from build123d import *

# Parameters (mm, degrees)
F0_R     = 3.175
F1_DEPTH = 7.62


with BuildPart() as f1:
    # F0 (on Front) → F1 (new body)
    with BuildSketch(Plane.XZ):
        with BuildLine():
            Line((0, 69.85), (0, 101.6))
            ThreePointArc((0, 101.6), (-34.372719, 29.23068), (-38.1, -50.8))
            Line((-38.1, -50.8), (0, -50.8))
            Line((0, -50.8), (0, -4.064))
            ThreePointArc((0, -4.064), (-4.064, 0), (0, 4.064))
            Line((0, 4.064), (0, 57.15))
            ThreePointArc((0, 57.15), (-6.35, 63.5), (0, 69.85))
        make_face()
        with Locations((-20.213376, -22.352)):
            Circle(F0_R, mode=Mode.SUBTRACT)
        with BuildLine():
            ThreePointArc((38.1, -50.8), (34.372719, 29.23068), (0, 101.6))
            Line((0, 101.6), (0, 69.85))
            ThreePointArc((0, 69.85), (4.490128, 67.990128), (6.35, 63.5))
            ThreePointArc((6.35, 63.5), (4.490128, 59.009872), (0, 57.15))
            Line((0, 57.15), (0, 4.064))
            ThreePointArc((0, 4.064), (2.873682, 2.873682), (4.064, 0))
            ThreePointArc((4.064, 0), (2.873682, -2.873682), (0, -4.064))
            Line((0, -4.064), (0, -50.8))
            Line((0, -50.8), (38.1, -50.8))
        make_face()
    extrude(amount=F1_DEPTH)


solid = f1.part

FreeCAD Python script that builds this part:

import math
import FreeCAD as App
import Part
import Sketcher
from FreeCAD import Vector
Q = App.Units.Quantity

doc = App.newDocument("Part")
body = doc.addObject("PartDesign::Body", "Body")

# Sketch on XZ plane
sketch1 = body.newObject("Sketcher::SketchObject", "Sketch")
sketch1.AttachmentSupport = (doc.getObject("XZ_Plane"), [""])
sketch1.MapMode = "FlatFace"
sketch1.addGeometry(Part.ArcOfCircle(Part.Circle(Vector(162.760234, -20.052559, 0), Vector(0, 0, 1), 203.199997), math.radians(143.224306), math.radians(188.703207)), False)
sketch1.addGeometry(Part.LineSegment(Vector(-38.1, -50.8, 0), Vector(38.1, -50.8, 0)), False)
sketch1.addGeometry(Part.ArcOfCircle(Part.Circle(Vector(-162.760234, -20.052559, 0), Vector(0, 0, 1), 203.199997), math.radians(-8.703207), math.radians(36.775694)), False)
sketch1.addGeometry(Part.ArcOfCircle(Part.Circle(Vector(0, 63.5, 0), Vector(0, 0, 1), 6.35), math.radians(90), math.radians(270)), False)
sketch1.addGeometry(Part.ArcOfCircle(Part.Circle(Vector(0, 63.5, 0), Vector(0, 0, 1), 6.35), math.radians(0.000002), math.radians(89.999998)), False)
sketch1.addGeometry(Part.ArcOfCircle(Part.Circle(Vector(0, 63.5, 0), Vector(0, 0, 1), 6.35), math.radians(-89.999998), math.radians(-0.000002)), False)
sketch1.addGeometry(Part.ArcOfCircle(Part.Circle(Vector(0, 0, 0), Vector(0, 0, 1), 4.064), math.radians(90), math.radians(270)), False)
sketch1.addGeometry(Part.ArcOfCircle(Part.Circle(Vector(0, 0, 0), Vector(0, 0, 1), 4.064), math.radians(-0.000002), math.radians(90.000002)), False)
sketch1.addGeometry(Part.ArcOfCircle(Part.Circle(Vector(0, 0, 0), Vector(0, 0, 1), 4.064), math.radians(-90.000002), math.radians(0.000002)), False)
sketch1.addGeometry(Part.Circle(Vector(-20.213376, -22.352, 0), Vector(0, 0, 1), 3.175), False)
sketch1.addConstraint(Sketcher.Constraint("Coincident", 0, 2, 1, 1))
sketch1.addConstraint(Sketcher.Constraint("Coincident", 1, 2, 2, 1))
sketch1.addConstraint(Sketcher.Constraint("Coincident", 2, 2, 0, 1))
sketch1.addConstraint(Sketcher.Constraint("Tangent", 3, 1, 4, 2))
sketch1.addConstraint(Sketcher.Constraint("Tangent", 4, 1, 5, 2))
sketch1.addConstraint(Sketcher.Constraint("Tangent", 5, 1, 3, 2))
sketch1.addConstraint(Sketcher.Constraint("Tangent", 6, 1, 7, 2))
sketch1.addConstraint(Sketcher.Constraint("Tangent", 7, 1, 8, 2))
sketch1.addConstraint(Sketcher.Constraint("Tangent", 8, 1, 6, 2))
sketch1.addConstraint(Sketcher.Constraint("Horizontal", 1))
sketch1.addConstraint(Sketcher.Constraint("Coincident", 6, 3, -1, 1))
sketch1.addConstraint(Sketcher.Constraint("Equal", 0, 2))
sketch1.addConstraint(Sketcher.Constraint("Symmetric", 0, 3, 2, 3, -2))
sketch1.addConstraint(Sketcher.Constraint("PointOnObject", 3, 3, -2))
sketch1.addConstraint(Sketcher.Constraint("PointOnObject", 3, 1, -2))
sketch1.addConstraint(Sketcher.Constraint("PointOnObject", 5, 1, -2))
sketch1.addConstraint(Sketcher.Constraint("PointOnObject", 6, 1, -2))
sketch1.addConstraint(Sketcher.Constraint("PointOnObject", 7, 1, -1))
sketch1.addConstraint(Sketcher.Constraint("PointOnObject", 8, 1, -2))
sketch1.addConstraint(Sketcher.Constraint("Horizontal", 5, 3, 4, 1))
sketch1.addConstraint(Sketcher.Constraint("Radius", 0, Q("7.9999999 in")))
sketch1.addConstraint(Sketcher.Constraint("Diameter", 9, Q("0.25 in")))
sketch1.addConstraint(Sketcher.Constraint("DistanceX", 1, 1, 1, 2, Q("3 in")))
sketch1.addConstraint(Sketcher.Constraint("Radius", 3, Q("0.25 in")))
sketch1.addConstraint(Sketcher.Constraint("Radius", 6, Q("0.16 in")))
sketch1.addConstraint(Sketcher.Constraint("DistanceY", 0, 2, -1, 1, Q("2 in")))
sketch1.addConstraint(Sketcher.Constraint("DistanceY", -1, 1, 2, 2, Q("4 in")))
sketch1.addConstraint(Sketcher.Constraint("DistanceY", -1, 1, 3, 3, Q("2.5 in")))
sketch1.addConstraint(Sketcher.Constraint("DistanceY", 9, 3, -1, 1, Q("0.88 in")))
sketch1.addConstraint(Sketcher.Constraint("DistanceX", 9, 3, -1, 1, Q("20.213376 mm")))
pad1 = body.newObject("PartDesign::Pad", "Pad")
pad1.Profile = sketch1
pad1.Length = Q("0.3 in")

doc.recompute()
